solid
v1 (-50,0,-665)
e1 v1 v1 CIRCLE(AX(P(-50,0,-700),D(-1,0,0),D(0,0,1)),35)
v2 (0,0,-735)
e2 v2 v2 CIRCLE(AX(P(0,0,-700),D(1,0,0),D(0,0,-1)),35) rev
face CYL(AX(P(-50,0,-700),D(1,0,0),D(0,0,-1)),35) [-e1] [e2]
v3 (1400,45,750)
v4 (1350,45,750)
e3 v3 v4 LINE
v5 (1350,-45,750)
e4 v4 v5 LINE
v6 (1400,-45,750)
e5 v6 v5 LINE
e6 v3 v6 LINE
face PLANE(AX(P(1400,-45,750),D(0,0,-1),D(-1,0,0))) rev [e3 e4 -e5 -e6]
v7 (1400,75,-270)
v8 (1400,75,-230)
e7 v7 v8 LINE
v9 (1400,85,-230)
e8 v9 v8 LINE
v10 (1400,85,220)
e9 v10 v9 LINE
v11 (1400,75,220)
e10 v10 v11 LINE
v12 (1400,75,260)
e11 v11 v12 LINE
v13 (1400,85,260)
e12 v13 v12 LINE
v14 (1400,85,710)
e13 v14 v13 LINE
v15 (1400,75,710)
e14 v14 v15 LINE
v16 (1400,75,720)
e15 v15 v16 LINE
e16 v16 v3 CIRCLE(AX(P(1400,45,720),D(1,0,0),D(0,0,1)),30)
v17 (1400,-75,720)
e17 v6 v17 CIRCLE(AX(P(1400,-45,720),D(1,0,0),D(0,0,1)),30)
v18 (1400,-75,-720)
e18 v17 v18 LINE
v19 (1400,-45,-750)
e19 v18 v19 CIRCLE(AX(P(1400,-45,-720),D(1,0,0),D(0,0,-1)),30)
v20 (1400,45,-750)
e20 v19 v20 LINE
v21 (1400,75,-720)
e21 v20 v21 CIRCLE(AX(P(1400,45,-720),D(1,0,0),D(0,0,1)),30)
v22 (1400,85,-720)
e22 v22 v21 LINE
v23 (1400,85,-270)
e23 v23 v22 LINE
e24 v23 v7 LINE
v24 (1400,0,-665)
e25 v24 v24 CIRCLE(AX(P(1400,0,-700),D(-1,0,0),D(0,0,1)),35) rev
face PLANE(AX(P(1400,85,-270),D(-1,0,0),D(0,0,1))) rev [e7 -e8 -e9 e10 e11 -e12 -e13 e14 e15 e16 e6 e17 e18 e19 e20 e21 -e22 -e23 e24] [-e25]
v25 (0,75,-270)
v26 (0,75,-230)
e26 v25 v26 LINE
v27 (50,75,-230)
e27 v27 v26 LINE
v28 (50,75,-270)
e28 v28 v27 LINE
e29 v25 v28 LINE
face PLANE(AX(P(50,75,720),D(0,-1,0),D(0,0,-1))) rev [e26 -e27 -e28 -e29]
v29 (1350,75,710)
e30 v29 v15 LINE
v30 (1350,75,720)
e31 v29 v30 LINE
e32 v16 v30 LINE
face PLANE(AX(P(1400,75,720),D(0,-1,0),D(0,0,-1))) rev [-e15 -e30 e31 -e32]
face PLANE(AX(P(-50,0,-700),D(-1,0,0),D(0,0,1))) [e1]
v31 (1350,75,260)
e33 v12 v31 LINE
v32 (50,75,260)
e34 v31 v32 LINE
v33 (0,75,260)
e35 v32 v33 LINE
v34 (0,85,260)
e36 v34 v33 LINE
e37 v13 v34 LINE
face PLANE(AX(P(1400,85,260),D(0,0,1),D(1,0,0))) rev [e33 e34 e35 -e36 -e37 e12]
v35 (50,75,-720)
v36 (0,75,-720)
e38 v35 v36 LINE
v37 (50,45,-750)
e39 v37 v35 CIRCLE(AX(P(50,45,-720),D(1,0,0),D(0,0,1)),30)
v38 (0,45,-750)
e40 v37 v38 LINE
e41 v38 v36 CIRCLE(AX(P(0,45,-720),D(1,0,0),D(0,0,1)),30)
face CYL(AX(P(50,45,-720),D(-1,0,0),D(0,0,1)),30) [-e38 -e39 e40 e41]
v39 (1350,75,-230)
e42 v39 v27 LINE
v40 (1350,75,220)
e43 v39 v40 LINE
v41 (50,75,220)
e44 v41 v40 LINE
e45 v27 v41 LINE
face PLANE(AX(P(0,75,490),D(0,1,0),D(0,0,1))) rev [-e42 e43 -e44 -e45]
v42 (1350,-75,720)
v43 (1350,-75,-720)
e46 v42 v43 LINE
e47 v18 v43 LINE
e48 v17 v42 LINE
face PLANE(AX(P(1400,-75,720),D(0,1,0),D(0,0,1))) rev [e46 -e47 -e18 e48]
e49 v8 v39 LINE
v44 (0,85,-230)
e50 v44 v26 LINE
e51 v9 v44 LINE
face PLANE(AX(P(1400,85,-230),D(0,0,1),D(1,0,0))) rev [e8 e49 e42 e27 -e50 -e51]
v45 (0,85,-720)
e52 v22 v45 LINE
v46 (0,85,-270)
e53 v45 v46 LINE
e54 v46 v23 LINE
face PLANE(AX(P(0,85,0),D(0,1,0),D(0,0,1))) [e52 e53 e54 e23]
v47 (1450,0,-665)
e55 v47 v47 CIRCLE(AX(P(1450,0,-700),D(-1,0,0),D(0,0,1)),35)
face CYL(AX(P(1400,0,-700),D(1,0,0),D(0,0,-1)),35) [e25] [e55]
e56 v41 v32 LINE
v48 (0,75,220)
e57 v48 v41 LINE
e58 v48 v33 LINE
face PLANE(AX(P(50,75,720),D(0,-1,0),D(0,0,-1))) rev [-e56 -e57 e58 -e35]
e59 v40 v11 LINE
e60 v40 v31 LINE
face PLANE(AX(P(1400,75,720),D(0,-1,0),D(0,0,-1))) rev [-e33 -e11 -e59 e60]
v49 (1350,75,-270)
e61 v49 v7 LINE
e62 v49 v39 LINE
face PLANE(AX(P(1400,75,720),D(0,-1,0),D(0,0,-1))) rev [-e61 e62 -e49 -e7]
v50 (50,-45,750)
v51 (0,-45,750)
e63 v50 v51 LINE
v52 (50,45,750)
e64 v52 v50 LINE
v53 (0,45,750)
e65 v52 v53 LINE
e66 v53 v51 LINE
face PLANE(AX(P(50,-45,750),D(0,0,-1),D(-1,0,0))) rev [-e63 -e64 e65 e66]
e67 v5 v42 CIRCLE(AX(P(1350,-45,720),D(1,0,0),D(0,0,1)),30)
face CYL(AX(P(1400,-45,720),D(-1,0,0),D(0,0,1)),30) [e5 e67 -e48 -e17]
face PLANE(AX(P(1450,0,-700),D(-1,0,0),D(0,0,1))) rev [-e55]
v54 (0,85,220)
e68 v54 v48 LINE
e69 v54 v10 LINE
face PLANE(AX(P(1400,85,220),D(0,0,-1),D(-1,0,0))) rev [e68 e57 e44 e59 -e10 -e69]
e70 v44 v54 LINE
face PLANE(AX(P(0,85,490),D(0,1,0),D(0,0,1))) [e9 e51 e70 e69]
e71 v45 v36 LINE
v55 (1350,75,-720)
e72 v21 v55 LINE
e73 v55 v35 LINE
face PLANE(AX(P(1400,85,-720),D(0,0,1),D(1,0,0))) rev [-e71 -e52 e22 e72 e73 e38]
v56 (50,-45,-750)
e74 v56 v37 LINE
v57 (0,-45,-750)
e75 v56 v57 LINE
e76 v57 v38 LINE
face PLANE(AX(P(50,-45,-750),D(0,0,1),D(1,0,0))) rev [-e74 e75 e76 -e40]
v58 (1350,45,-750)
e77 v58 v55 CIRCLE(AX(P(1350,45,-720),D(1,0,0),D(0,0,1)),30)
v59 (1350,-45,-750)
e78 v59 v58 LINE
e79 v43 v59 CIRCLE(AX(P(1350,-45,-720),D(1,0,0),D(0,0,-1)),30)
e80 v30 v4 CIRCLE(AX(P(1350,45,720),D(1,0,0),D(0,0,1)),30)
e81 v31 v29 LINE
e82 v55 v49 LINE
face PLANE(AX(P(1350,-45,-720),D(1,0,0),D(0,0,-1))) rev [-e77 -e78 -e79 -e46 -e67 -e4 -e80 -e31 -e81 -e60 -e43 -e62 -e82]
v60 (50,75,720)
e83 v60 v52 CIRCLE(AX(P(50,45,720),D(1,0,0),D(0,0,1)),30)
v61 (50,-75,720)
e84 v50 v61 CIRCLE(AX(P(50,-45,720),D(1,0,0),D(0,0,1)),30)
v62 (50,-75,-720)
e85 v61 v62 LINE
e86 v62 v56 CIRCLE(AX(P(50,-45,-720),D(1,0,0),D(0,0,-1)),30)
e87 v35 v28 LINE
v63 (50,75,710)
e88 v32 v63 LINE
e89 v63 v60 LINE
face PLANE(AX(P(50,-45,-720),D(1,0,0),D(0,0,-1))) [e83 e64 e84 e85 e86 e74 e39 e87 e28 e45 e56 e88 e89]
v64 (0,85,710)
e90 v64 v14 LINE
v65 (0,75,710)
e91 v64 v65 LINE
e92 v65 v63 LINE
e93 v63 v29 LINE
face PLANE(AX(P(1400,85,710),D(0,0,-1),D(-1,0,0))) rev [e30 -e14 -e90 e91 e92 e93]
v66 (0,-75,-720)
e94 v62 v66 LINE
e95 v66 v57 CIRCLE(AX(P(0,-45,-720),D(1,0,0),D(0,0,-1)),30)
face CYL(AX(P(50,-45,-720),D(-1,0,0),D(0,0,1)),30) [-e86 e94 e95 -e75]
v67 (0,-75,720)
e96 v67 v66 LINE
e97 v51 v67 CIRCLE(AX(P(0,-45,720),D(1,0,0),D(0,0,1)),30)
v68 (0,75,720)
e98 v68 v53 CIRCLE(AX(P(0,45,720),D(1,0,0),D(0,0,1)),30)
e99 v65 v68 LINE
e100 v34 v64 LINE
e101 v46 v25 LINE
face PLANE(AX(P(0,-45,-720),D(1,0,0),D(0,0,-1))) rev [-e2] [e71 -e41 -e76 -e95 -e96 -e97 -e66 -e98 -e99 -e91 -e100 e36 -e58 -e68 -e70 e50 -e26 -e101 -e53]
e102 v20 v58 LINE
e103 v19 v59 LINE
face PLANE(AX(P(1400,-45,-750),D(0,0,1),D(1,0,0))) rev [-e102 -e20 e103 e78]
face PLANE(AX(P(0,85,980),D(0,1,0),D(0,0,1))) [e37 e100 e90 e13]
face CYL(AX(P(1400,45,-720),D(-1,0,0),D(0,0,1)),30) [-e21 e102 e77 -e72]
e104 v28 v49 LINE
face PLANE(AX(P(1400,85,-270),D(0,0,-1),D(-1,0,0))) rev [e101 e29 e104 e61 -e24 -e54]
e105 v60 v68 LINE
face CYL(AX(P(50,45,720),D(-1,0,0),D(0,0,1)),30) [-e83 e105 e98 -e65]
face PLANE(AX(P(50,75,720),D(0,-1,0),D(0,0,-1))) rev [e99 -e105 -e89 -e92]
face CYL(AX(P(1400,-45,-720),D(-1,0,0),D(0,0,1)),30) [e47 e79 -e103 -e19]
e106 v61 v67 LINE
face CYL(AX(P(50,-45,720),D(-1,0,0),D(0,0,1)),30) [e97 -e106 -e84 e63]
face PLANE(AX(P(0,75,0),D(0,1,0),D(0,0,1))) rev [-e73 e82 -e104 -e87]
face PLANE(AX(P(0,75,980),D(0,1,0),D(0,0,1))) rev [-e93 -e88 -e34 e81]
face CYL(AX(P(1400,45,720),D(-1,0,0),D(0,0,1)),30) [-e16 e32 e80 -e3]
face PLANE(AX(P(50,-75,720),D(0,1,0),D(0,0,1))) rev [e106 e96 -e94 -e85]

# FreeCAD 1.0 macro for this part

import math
import FreeCAD as App
import Part
import Sketcher
from FreeCAD import Vector

doc = App.newDocument("Part")
params = doc.addObject("Spreadsheet::Sheet", "Params")
for row, (alias, value) in enumerate([
    ("sketch1_radius", "30 mm"),
    ("sketch1_width", "90 mm"),
    ("sketch1_height", "1440 mm"),
    ("pad1_length", "50 mm"),
    ("sketch2_width", "1400 mm"),
    ("sketch2_height", "450 mm"),
    ("pad2_length", "10 mm"),
    ("linearpattern_pitch", "1350 mm"),
    ("linearpattern2_pitch", "490 mm"),
    ("sketch3_diameter", "70 mm"),
    ("pad3_length", "50 mm"),
    ("linearpattern3_pitch", "1450 mm"),
], start=1):
    params.set(f"A{row}", alias)
    params.set(f"B{row}", "=" + value)
    params.setAlias(f"B{row}", alias)

body = doc.addObject("PartDesign::Body", "Body")

sketch1 = body.newObject("Sketcher::SketchObject", "Sketch")
sketch1.AttachmentSupport = (doc.getObject("YZ_Plane"), [""])
sketch1.MapMode = "FlatFace"
sketch1.addGeometry(Part.LineSegment(Vector(-75, 720, 0), Vector(-75, -720, 0)), False)
sketch1.addGeometry(Part.ArcOfCircle(Part.Circle(Vector(-45, -720, 0), Vector(0, 0, 1), 30), math.radians(180), math.radians(270)), False)
sketch1.addGeometry(Part.LineSegment(Vector(-45, -750, 0), Vector(45, -750, 0)), False)
sketch1.addGeometry(Part.ArcOfCircle(Part.Circle(Vector(45, -720, 0), Vector(0, 0, 1), 30), math.radians(-90), math.radians(0)), False)
sketch1.addGeometry(Part.LineSegment(Vector(75, -720, 0), Vector(75, 720, 0)), False)
sketch1.addGeometry(Part.ArcOfCircle(Part.Circle(Vector(45, 720, 0), Vector(0, 0, 1), 30), math.radians(0), math.radians(90)), False)
sketch1.addGeometry(Part.LineSegment(Vector(45, 750, 0), Vector(-45, 750, 0)), False)
sketch1.addGeometry(Part.ArcOfCircle(Part.Circle(Vector(-45, 720, 0), Vector(0, 0, 1), 30), math.radians(90), math.radians(180)), False)
sketch1.addConstraint(Sketcher.Constraint("Tangent", 0, 2, 1, 1))
sketch1.addConstraint(Sketcher.Constraint("Tangent", 1, 2, 2, 1))
sketch1.addConstraint(Sketcher.Constraint("Tangent", 2, 2, 3, 1))
sketch1.addConstraint(Sketcher.Constraint("Tangent", 3, 2, 4, 1))
sketch1.addConstraint(Sketcher.Constraint("Tangent", 4, 2, 5, 1))
sketch1.addConstraint(Sketcher.Constraint("Tangent", 5, 2, 6, 1))
sketch1.addConstraint(Sketcher.Constraint("Tangent", 6, 2, 7, 1))
sketch1.addConstraint(Sketcher.Constraint("Tangent", 7, 2, 0, 1))
sketch1.addConstraint(Sketcher.Constraint("Vertical", 0))
sketch1.addConstraint(Sketcher.Constraint("Horizontal", 2))
sketch1.addConstraint(Sketcher.Constraint("Vertical", 4))
sketch1.addConstraint(Sketcher.Constraint("Horizontal", 6))
sketch1.addConstraint(Sketcher.Constraint("Equal", 1, 3))
sketch1.addConstraint(Sketcher.Constraint("Equal", 3, 5))
sketch1.addConstraint(Sketcher.Constraint("Equal", 5, 7))
sketch1.addConstraint(Sketcher.Constraint("Symmetric", 1, 3, 5, 3, -1, 1))
sketch1.addConstraint(Sketcher.Constraint("Radius", 1, 30.0))
sketch1.addConstraint(Sketcher.Constraint("DistanceX", 2, 1, 2, 2, 90.0))
sketch1.addConstraint(Sketcher.Constraint("DistanceY", 0, 2, 0, 1, 1440.0))
sketch1.setExpression("Constraints[16]", "Params.sketch1_radius")
sketch1.setExpression("Constraints[17]", "Params.sketch1_width")
sketch1.setExpression("Constraints[18]", "Params.sketch1_height")
pad1 = body.newObject("PartDesign::Pad", "Pad")
pad1.Profile = sketch1
pad1.setExpression("Length", "Params.pad1_length")

sketch2 = body.newObject("Sketcher::SketchObject", "Sketch001")
sketch2.AttachmentSupport = (doc.getObject("XZ_Plane"), [""])
sketch2.MapMode = "FlatFace"
sketch2.AttachmentOffset = App.Placement(Vector(0, 0, -75), App.Rotation())
sketch2.addGeometry(Part.LineSegment(Vector(0, -720, 0), Vector(0, -270, 0)), False)
sketch2.addGeometry(Part.LineSegment(Vector(0, -270, 0), Vector(1400, -270, 0)), False)
sketch2.addGeometry(Part.LineSegment(Vector(1400, -270, 0), Vector(1400, -720, 0)), False)
sketch2.addGeometry(Part.LineSegment(Vector(1400, -720, 0), Vector(0, -720, 0)), False)
sketch2.addConstraint(Sketcher.Constraint("Coincident", 0, 2, 1, 1))
sketch2.addConstraint(Sketcher.Constraint("Coincident", 1, 2, 2, 1))
sketch2.addConstraint(Sketcher.Constraint("Coincident", 2, 2, 3, 1))
sketch2.addConstraint(Sketcher.Constraint("Coincident", 3, 2, 0, 1))
sketch2.addConstraint(Sketcher.Constraint("Vertical", 0))
sketch2.addConstraint(Sketcher.Constraint("Horizontal", 1))
sketch2.addConstraint(Sketcher.Constraint("Vertical", 2))
sketch2.addConstraint(Sketcher.Constraint("Horizontal", 3))
sketch2.addConstraint(Sketcher.Constraint("PointOnObject", 0, 2, -2))
sketch2.addConstraint(Sketcher.Constraint("DistanceX", 1, 1, 1, 2, 1400.0))
sketch2.addConstraint(Sketcher.Constraint("DistanceY", 0, 1, 0, 2, 450.0))
sketch2.addConstraint(Sketcher.Constraint("DistanceY", 0, 2, -1, 1, 270.0))
sketch2.setExpression("Constraints[9]", "Params.sketch2_width")
sketch2.setExpression("Constraints[10]", "Params.sketch2_height")
pad2 = body.newObject("PartDesign::Pad", "Pad001")
pad2.Profile = sketch2
pad2.setExpression("Length", "Params.pad2_length")
pad2.Reversed = True
doc.recompute()

linearpattern = body.newObject("PartDesign::LinearPattern", "LinearPattern")
linearpattern.Originals = [pad1]
linearpattern.Direction = (doc.getObject("X_Axis"), [""])
linearpattern.Mode = "offset"
linearpattern.setExpression("Offset", "Params.linearpattern_pitch")
linearpattern.Occurrences = 2
body.Tip = linearpattern
doc.recompute()

linearpattern2 = body.newObject("PartDesign::LinearPattern", "LinearPattern001")
linearpattern2.Originals = [pad2]
linearpattern2.Direction = (doc.getObject("Z_Axis"), [""])
linearpattern2.Mode = "offset"
linearpattern2.setExpression("Offset", "Params.linearpattern2_pitch")
linearpattern2.Occurrences = 3
body.Tip = linearpattern2

sketch3 = body.newObject("Sketcher::SketchObject", "Sketch002")
sketch3.AttachmentSupport = (doc.getObject("YZ_Plane"), [""])
sketch3.MapMode = "FlatFace"
sketch3.addGeometry(Part.Circle(Vector(0, -700, 0), Vector(0, 0, 1), 35), False)
sketch3.addConstraint(Sketcher.Constraint("PointOnObject", 0, 3, -2))
sketch3.addConstraint(Sketcher.Constraint("Diameter", 0, 70.0))
sketch3.addConstraint(Sketcher.Constraint("DistanceY", 0, 3, -1, 1, 700.0))
sketch3.setExpression("Constraints[1]", "Params.sketch3_diameter")
pad3 = body.newObject("PartDesign::Pad", "Pad002")
pad3.Profile = sketch3
pad3.setExpression("Length", "Params.pad3_length")
pad3.Reversed = True
doc.recompute()

linearpattern3 = body.newObject("PartDesign::LinearPattern", "LinearPattern002")
linearpattern3.Originals = [pad3]
linearpattern3.Direction = (doc.getObject("X_Axis"), [""])
linearpattern3.Mode = "offset"
linearpattern3.setExpression("Offset", "Params.linearpattern3_pitch")
linearpattern3.Occurrences = 2
body.Tip = linearpattern3

doc.recompute()
